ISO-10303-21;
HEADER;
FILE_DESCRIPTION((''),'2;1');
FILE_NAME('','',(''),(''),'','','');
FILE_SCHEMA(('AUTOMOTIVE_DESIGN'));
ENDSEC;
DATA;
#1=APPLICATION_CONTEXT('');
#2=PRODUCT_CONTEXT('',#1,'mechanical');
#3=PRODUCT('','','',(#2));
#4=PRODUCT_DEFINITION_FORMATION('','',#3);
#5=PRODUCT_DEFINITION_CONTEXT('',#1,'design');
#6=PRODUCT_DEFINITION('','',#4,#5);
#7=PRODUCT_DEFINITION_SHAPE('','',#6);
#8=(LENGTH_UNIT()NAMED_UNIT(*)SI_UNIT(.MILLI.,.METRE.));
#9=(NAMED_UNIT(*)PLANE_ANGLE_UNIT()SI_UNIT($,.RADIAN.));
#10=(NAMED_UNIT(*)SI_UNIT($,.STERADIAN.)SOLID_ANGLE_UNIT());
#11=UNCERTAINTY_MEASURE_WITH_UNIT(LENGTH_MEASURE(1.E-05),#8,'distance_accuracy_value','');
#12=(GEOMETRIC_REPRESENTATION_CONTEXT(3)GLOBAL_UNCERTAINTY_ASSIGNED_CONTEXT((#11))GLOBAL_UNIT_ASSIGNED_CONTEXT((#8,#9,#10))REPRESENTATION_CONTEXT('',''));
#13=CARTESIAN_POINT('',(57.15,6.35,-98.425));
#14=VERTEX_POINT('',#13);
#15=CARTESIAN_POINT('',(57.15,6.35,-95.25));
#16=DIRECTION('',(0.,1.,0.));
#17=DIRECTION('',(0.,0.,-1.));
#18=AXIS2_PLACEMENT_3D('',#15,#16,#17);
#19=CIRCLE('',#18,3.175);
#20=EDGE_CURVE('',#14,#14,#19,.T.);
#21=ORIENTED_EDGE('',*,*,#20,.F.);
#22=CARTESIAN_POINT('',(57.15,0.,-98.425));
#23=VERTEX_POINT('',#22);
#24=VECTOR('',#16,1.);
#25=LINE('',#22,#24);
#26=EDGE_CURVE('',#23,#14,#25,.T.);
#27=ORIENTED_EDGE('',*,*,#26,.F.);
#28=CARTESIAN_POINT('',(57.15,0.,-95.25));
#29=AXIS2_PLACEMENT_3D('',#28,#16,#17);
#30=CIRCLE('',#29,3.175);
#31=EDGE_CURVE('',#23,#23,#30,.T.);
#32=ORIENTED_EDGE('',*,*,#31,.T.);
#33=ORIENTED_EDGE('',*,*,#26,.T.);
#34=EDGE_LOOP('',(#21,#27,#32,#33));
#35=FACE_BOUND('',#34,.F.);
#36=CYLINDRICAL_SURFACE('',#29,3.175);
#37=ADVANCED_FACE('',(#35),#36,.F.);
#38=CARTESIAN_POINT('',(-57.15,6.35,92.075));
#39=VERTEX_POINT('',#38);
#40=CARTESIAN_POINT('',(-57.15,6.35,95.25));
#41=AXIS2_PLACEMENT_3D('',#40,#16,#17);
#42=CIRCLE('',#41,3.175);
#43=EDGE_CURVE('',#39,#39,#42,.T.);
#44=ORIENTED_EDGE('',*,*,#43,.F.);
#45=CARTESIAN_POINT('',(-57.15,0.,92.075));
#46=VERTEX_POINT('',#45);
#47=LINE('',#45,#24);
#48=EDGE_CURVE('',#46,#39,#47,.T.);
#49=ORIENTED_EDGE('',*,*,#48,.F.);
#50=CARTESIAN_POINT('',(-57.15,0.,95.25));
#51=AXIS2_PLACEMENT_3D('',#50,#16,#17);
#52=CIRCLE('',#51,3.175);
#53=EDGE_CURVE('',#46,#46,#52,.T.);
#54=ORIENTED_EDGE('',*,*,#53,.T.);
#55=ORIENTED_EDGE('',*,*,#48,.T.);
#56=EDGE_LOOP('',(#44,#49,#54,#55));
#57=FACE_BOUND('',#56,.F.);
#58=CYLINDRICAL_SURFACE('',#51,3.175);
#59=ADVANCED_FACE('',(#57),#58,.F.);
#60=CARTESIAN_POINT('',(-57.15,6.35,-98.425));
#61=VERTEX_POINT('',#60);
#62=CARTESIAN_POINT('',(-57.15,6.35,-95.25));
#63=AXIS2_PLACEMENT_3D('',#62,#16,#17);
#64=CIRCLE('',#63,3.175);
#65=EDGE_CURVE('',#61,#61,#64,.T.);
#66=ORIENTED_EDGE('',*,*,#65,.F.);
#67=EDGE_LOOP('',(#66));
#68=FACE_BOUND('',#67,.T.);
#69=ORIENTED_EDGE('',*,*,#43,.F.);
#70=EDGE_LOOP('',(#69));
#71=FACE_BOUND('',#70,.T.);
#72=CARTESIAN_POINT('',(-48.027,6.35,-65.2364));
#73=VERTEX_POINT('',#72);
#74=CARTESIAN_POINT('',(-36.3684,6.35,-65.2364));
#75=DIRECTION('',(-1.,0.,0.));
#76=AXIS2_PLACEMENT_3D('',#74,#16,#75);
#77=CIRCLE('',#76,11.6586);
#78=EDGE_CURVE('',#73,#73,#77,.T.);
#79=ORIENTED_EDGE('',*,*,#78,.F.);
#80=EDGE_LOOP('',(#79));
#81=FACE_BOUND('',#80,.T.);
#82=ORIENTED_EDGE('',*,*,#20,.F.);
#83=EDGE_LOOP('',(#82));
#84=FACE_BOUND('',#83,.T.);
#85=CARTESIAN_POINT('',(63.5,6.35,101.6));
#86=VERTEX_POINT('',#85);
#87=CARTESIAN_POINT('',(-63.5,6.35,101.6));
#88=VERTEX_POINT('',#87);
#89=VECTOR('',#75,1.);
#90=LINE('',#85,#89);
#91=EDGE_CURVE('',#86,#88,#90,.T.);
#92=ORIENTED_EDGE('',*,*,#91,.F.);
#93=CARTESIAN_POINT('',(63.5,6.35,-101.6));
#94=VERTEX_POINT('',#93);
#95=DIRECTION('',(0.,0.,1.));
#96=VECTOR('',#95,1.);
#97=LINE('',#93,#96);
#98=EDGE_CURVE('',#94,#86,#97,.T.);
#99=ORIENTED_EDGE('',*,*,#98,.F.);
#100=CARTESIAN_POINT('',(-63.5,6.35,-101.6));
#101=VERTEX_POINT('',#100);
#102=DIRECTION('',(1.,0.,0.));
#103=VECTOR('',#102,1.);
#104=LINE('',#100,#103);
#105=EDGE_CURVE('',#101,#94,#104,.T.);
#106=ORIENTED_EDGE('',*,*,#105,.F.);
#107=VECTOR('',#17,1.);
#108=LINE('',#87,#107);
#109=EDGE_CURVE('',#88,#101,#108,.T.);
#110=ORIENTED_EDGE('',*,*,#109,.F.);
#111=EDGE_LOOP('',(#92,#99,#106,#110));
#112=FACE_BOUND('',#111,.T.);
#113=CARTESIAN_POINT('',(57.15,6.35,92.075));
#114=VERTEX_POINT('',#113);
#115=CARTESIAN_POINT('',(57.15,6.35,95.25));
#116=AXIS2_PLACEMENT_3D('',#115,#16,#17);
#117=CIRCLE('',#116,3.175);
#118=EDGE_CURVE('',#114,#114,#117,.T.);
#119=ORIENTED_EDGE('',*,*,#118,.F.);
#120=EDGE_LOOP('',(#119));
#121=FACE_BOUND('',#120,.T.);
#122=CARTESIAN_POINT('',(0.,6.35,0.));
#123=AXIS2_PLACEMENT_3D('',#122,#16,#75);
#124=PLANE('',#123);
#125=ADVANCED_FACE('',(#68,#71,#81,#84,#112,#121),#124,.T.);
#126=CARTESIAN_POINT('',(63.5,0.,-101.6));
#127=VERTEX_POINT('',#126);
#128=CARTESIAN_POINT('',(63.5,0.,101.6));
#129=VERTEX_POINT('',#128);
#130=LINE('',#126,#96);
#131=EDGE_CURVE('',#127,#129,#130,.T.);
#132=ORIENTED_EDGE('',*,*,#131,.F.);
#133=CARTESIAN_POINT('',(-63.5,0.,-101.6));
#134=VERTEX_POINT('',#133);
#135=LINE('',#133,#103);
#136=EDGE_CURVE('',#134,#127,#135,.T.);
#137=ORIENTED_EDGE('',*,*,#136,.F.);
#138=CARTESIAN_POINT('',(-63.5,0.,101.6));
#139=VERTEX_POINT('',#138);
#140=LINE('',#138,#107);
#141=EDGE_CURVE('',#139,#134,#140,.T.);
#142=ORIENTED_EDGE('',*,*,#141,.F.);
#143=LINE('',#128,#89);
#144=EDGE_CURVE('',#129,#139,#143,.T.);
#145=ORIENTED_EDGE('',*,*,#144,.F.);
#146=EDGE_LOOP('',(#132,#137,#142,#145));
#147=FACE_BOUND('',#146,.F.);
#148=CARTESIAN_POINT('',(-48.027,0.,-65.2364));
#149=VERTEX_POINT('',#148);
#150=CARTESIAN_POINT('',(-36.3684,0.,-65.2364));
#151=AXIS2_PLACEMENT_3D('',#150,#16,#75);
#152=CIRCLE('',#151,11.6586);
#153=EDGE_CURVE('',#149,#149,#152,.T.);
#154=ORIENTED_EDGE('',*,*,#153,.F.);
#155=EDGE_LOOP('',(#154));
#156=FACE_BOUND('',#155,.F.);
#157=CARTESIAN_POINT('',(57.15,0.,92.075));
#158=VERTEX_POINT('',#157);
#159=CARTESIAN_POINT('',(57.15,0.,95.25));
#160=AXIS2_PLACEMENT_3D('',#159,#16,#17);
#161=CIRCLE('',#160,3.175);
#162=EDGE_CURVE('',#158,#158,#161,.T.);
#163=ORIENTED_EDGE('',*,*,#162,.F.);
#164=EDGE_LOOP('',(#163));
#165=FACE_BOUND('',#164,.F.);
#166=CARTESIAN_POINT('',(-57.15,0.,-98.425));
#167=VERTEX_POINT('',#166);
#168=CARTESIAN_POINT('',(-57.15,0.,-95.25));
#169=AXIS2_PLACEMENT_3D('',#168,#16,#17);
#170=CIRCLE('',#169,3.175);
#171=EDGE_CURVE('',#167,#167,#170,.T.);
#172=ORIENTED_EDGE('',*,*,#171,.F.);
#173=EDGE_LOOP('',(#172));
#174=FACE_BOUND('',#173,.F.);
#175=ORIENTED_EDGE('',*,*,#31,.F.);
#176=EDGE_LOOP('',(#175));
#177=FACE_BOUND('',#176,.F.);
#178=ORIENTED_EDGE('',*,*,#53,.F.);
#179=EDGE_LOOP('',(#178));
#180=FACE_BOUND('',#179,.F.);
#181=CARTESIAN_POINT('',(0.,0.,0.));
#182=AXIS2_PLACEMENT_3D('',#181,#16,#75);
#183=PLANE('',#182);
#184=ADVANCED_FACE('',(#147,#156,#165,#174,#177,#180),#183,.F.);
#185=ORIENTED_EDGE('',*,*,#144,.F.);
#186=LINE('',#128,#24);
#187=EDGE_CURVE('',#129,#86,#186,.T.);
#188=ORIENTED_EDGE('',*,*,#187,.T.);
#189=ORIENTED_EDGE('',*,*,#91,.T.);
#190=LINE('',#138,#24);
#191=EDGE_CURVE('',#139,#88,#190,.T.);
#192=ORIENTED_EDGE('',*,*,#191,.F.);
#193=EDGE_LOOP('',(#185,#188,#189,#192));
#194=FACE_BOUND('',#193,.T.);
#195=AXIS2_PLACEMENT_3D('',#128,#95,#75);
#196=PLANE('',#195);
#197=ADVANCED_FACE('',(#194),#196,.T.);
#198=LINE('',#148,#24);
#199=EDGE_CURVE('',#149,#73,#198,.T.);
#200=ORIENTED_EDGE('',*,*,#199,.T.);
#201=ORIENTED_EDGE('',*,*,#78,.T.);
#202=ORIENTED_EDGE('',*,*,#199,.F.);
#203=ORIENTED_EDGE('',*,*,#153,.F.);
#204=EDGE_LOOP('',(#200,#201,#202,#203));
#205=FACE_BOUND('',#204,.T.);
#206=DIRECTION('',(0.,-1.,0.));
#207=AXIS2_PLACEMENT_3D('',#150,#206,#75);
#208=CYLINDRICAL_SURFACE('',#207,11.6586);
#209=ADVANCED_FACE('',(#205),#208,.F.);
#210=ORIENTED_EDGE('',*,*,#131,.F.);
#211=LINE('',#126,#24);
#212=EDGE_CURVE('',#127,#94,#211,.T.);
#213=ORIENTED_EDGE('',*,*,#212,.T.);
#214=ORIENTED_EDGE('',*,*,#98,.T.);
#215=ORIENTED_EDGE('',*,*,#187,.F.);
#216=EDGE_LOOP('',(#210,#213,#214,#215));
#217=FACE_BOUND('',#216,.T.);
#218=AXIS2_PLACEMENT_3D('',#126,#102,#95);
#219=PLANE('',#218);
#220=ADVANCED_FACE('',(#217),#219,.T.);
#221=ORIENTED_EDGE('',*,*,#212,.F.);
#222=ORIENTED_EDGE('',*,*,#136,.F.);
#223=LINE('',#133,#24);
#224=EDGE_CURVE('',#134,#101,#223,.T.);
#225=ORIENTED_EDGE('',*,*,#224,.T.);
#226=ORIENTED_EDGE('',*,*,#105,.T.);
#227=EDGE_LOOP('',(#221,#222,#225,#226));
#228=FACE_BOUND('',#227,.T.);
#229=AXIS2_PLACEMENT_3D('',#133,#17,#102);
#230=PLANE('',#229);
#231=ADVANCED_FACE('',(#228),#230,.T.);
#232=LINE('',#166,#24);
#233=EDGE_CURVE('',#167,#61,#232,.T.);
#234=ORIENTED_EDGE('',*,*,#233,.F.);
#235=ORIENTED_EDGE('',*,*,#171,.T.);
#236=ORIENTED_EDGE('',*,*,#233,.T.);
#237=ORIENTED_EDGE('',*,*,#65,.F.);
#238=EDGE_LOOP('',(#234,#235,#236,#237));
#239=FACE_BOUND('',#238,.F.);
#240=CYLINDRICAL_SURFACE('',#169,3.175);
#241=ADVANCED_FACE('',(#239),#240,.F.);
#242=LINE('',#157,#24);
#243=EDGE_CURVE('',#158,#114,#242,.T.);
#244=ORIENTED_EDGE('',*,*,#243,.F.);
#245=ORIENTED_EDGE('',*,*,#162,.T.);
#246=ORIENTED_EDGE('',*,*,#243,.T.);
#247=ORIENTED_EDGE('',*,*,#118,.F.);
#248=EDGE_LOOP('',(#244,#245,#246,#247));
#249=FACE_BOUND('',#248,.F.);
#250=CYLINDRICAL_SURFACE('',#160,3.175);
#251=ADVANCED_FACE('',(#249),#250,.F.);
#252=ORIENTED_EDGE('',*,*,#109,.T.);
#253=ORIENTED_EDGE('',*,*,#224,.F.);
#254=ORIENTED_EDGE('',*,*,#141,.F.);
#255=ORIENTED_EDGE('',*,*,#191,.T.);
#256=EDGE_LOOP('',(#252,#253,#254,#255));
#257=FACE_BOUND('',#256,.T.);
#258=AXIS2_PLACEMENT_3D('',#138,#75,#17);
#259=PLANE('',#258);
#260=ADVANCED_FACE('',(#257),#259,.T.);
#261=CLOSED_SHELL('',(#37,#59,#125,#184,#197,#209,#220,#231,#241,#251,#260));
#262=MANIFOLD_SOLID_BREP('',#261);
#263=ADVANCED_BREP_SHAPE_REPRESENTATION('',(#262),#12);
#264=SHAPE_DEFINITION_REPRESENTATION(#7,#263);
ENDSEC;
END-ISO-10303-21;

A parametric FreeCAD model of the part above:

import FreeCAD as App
import Part
import Sketcher
Q = App.Units.Quantity


def add_polygon(sketch, points):
    """Adds a closed chain of lines whose ends are joined by coincident constraints."""
    first, n = sketch.GeometryCount, len(points)
    for a, b in zip(points, points[1:] + points[:1]):
        sketch.addGeometry(Part.LineSegment(App.Vector(*a, 0), App.Vector(*b, 0)), False)
    for i in range(n):
        sketch.addConstraint(Sketcher.Constraint("Coincident", first + i, 2, first + (i + 1) % n, 1))

doc = App.newDocument("Part")
body = doc.addObject("PartDesign::Body", "Body")

# Sketch on XZ plane
sketch1 = doc.addObject("Sketcher::SketchObject", "Sketch")
body.addObject(sketch1)
sketch1.AttachmentSupport = (doc.XZ_Plane, [""])
sketch1.MapMode = "FlatFace"
add_polygon(sketch1, [(64, -102), (-64, -102), (-64, 102), (64, 102)])  # lines 0-3
sketch1.addGeometry(Part.Circle(App.Vector(-36, -65, 0), App.Vector(0, 0, 1), 12), False)  # 4
sketch1.addConstraint(Sketcher.Constraint("Horizontal", 0))
sketch1.addConstraint(Sketcher.Constraint("Vertical", 1))
sketch1.addConstraint(Sketcher.Constraint("Horizontal", 2))
sketch1.addConstraint(Sketcher.Constraint("Vertical", 3))
sketch1.addConstraint(Sketcher.Constraint("Symmetric", 0, 2, 2, 2, -1, 1))
sketch1.addConstraint(Sketcher.Constraint("DistanceX", 0, 2, 0, 1, Q("5 in")))
sketch1.addConstraint(Sketcher.Constraint("DistanceY", 1, 1, 1, 2, Q("8 in")))
sketch1.addConstraint(Sketcher.Constraint("Diameter", 4, Q("0.918 in")))
sketch1.addConstraint(Sketcher.Constraint("DistanceX", 4, 3, -1, 1, 36.3684))
sketch1.addConstraint(Sketcher.Constraint("DistanceY", 4, 3, -1, 1, 65.2364))
pad1 = doc.addObject("PartDesign::Pad", "Pad")
body.addObject(pad1)
pad1.Profile = sketch1
pad1.Length = Q("0.25 in")
pad1.Reversed = True

# Sketch on XZ plane
sketch2 = doc.addObject("Sketcher::SketchObject", "Sketch001")
body.addObject(sketch2)
sketch2.AttachmentSupport = (doc.XZ_Plane, [""])
sketch2.MapMode = "FlatFace"
sketch2.addGeometry(Part.Circle(App.Vector(57.1, -95.2, 0), App.Vector(0, 0, 1), 3.2), False)
sketch2.addGeometry(Part.Circle(App.Vector(-57.1, -95.2, 0), App.Vector(0, 0, 1), 3.2), False)
sketch2.addGeometry(Part.Circle(App.Vector(-57.1, 95.2, 0), App.Vector(0, 0, 1), 3.2), False)
sketch2.addGeometry(Part.Circle(App.Vector(57.1, 95.2, 0), App.Vector(0, 0, 1), 3.2), False)
sketch2.addConstraint(Sketcher.Constraint("Equal", 0, 1))
sketch2.addConstraint(Sketcher.Constraint("Equal", 1, 2))
sketch2.addConstraint(Sketcher.Constraint("Equal", 2, 3))
sketch2.addConstraint(Sketcher.Constraint("Symmetric", 0, 3, 2, 3, -1, 1))
sketch2.addConstraint(Sketcher.Constraint("Symmetric", 1, 3, 3, 3, -1, 1))
sketch2.addConstraint(Sketcher.Constraint("Symmetric", 0, 3, 1, 3, -2))
sketch2.addConstraint(Sketcher.Constraint("Diameter", 0, Q("0.25 in")))
sketch2.addConstraint(Sketcher.Constraint("DistanceX", 1, 3, 0, 3, Q("4.5 in")))
sketch2.addConstraint(Sketcher.Constraint("DistanceY", 1, 3, 2, 3, Q("7.5 in")))
doc.recompute()
hole = doc.addObject("PartDesign::Hole", "Hole")
body.addObject(hole)
hole.Profile = sketch2
hole.ThreadType = "None"
hole.Diameter = Q("0.25 in")
hole.DepthType = "ThroughAll"

doc.recompute()
